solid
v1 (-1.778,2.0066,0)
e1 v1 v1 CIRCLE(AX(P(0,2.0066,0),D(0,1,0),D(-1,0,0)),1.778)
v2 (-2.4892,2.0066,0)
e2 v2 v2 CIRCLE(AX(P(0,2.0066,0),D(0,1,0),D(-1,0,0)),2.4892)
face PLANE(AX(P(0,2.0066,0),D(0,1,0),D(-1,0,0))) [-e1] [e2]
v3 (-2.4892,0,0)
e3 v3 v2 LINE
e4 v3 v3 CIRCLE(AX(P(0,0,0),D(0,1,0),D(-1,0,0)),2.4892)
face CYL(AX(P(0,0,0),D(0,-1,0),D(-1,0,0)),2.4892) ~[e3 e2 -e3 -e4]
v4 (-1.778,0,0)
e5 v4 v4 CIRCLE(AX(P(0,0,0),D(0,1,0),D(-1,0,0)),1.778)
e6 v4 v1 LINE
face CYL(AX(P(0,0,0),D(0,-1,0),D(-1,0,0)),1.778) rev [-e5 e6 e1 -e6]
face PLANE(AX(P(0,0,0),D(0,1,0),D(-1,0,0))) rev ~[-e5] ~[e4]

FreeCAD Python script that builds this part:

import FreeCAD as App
import Part
import Sketcher

V = App.Vector
Q = App.Units.Quantity

doc = App.newDocument("Part")
body = doc.addObject("PartDesign::Body", "Body")

sketch1 = body.newObject("Sketcher::SketchObject", "Sketch")
sketch1.AttachmentSupport = (doc.getObject("XZ_Plane"), [""])
sketch1.MapMode = "FlatFace"
sketch1.addGeometry(Part.Circle(V(0, 0, 0), V(0, 0, 1), 2.4892), False)
sketch1.addGeometry(Part.Circle(V(0, 0, 0), V(0, 0, 1), 1.778), False)
sketch1.addConstraint(Sketcher.Constraint("Coincident", 0, 3, -1, 1))
sketch1.addConstraint(Sketcher.Constraint("Coincident", 1, 3, -1, 1))
sketch1.addConstraint(Sketcher.Constraint("Diameter", 1, Q("0.14 in")))
sketch1.addConstraint(Sketcher.Constraint("Diameter", 0, Q("0.196 in")))
pad1 = body.newObject("PartDesign::Pad", "Pad")
pad1.Profile = sketch1
pad1.Length = Q("0.079 in")
pad1.Reversed = True

doc.recompute()
